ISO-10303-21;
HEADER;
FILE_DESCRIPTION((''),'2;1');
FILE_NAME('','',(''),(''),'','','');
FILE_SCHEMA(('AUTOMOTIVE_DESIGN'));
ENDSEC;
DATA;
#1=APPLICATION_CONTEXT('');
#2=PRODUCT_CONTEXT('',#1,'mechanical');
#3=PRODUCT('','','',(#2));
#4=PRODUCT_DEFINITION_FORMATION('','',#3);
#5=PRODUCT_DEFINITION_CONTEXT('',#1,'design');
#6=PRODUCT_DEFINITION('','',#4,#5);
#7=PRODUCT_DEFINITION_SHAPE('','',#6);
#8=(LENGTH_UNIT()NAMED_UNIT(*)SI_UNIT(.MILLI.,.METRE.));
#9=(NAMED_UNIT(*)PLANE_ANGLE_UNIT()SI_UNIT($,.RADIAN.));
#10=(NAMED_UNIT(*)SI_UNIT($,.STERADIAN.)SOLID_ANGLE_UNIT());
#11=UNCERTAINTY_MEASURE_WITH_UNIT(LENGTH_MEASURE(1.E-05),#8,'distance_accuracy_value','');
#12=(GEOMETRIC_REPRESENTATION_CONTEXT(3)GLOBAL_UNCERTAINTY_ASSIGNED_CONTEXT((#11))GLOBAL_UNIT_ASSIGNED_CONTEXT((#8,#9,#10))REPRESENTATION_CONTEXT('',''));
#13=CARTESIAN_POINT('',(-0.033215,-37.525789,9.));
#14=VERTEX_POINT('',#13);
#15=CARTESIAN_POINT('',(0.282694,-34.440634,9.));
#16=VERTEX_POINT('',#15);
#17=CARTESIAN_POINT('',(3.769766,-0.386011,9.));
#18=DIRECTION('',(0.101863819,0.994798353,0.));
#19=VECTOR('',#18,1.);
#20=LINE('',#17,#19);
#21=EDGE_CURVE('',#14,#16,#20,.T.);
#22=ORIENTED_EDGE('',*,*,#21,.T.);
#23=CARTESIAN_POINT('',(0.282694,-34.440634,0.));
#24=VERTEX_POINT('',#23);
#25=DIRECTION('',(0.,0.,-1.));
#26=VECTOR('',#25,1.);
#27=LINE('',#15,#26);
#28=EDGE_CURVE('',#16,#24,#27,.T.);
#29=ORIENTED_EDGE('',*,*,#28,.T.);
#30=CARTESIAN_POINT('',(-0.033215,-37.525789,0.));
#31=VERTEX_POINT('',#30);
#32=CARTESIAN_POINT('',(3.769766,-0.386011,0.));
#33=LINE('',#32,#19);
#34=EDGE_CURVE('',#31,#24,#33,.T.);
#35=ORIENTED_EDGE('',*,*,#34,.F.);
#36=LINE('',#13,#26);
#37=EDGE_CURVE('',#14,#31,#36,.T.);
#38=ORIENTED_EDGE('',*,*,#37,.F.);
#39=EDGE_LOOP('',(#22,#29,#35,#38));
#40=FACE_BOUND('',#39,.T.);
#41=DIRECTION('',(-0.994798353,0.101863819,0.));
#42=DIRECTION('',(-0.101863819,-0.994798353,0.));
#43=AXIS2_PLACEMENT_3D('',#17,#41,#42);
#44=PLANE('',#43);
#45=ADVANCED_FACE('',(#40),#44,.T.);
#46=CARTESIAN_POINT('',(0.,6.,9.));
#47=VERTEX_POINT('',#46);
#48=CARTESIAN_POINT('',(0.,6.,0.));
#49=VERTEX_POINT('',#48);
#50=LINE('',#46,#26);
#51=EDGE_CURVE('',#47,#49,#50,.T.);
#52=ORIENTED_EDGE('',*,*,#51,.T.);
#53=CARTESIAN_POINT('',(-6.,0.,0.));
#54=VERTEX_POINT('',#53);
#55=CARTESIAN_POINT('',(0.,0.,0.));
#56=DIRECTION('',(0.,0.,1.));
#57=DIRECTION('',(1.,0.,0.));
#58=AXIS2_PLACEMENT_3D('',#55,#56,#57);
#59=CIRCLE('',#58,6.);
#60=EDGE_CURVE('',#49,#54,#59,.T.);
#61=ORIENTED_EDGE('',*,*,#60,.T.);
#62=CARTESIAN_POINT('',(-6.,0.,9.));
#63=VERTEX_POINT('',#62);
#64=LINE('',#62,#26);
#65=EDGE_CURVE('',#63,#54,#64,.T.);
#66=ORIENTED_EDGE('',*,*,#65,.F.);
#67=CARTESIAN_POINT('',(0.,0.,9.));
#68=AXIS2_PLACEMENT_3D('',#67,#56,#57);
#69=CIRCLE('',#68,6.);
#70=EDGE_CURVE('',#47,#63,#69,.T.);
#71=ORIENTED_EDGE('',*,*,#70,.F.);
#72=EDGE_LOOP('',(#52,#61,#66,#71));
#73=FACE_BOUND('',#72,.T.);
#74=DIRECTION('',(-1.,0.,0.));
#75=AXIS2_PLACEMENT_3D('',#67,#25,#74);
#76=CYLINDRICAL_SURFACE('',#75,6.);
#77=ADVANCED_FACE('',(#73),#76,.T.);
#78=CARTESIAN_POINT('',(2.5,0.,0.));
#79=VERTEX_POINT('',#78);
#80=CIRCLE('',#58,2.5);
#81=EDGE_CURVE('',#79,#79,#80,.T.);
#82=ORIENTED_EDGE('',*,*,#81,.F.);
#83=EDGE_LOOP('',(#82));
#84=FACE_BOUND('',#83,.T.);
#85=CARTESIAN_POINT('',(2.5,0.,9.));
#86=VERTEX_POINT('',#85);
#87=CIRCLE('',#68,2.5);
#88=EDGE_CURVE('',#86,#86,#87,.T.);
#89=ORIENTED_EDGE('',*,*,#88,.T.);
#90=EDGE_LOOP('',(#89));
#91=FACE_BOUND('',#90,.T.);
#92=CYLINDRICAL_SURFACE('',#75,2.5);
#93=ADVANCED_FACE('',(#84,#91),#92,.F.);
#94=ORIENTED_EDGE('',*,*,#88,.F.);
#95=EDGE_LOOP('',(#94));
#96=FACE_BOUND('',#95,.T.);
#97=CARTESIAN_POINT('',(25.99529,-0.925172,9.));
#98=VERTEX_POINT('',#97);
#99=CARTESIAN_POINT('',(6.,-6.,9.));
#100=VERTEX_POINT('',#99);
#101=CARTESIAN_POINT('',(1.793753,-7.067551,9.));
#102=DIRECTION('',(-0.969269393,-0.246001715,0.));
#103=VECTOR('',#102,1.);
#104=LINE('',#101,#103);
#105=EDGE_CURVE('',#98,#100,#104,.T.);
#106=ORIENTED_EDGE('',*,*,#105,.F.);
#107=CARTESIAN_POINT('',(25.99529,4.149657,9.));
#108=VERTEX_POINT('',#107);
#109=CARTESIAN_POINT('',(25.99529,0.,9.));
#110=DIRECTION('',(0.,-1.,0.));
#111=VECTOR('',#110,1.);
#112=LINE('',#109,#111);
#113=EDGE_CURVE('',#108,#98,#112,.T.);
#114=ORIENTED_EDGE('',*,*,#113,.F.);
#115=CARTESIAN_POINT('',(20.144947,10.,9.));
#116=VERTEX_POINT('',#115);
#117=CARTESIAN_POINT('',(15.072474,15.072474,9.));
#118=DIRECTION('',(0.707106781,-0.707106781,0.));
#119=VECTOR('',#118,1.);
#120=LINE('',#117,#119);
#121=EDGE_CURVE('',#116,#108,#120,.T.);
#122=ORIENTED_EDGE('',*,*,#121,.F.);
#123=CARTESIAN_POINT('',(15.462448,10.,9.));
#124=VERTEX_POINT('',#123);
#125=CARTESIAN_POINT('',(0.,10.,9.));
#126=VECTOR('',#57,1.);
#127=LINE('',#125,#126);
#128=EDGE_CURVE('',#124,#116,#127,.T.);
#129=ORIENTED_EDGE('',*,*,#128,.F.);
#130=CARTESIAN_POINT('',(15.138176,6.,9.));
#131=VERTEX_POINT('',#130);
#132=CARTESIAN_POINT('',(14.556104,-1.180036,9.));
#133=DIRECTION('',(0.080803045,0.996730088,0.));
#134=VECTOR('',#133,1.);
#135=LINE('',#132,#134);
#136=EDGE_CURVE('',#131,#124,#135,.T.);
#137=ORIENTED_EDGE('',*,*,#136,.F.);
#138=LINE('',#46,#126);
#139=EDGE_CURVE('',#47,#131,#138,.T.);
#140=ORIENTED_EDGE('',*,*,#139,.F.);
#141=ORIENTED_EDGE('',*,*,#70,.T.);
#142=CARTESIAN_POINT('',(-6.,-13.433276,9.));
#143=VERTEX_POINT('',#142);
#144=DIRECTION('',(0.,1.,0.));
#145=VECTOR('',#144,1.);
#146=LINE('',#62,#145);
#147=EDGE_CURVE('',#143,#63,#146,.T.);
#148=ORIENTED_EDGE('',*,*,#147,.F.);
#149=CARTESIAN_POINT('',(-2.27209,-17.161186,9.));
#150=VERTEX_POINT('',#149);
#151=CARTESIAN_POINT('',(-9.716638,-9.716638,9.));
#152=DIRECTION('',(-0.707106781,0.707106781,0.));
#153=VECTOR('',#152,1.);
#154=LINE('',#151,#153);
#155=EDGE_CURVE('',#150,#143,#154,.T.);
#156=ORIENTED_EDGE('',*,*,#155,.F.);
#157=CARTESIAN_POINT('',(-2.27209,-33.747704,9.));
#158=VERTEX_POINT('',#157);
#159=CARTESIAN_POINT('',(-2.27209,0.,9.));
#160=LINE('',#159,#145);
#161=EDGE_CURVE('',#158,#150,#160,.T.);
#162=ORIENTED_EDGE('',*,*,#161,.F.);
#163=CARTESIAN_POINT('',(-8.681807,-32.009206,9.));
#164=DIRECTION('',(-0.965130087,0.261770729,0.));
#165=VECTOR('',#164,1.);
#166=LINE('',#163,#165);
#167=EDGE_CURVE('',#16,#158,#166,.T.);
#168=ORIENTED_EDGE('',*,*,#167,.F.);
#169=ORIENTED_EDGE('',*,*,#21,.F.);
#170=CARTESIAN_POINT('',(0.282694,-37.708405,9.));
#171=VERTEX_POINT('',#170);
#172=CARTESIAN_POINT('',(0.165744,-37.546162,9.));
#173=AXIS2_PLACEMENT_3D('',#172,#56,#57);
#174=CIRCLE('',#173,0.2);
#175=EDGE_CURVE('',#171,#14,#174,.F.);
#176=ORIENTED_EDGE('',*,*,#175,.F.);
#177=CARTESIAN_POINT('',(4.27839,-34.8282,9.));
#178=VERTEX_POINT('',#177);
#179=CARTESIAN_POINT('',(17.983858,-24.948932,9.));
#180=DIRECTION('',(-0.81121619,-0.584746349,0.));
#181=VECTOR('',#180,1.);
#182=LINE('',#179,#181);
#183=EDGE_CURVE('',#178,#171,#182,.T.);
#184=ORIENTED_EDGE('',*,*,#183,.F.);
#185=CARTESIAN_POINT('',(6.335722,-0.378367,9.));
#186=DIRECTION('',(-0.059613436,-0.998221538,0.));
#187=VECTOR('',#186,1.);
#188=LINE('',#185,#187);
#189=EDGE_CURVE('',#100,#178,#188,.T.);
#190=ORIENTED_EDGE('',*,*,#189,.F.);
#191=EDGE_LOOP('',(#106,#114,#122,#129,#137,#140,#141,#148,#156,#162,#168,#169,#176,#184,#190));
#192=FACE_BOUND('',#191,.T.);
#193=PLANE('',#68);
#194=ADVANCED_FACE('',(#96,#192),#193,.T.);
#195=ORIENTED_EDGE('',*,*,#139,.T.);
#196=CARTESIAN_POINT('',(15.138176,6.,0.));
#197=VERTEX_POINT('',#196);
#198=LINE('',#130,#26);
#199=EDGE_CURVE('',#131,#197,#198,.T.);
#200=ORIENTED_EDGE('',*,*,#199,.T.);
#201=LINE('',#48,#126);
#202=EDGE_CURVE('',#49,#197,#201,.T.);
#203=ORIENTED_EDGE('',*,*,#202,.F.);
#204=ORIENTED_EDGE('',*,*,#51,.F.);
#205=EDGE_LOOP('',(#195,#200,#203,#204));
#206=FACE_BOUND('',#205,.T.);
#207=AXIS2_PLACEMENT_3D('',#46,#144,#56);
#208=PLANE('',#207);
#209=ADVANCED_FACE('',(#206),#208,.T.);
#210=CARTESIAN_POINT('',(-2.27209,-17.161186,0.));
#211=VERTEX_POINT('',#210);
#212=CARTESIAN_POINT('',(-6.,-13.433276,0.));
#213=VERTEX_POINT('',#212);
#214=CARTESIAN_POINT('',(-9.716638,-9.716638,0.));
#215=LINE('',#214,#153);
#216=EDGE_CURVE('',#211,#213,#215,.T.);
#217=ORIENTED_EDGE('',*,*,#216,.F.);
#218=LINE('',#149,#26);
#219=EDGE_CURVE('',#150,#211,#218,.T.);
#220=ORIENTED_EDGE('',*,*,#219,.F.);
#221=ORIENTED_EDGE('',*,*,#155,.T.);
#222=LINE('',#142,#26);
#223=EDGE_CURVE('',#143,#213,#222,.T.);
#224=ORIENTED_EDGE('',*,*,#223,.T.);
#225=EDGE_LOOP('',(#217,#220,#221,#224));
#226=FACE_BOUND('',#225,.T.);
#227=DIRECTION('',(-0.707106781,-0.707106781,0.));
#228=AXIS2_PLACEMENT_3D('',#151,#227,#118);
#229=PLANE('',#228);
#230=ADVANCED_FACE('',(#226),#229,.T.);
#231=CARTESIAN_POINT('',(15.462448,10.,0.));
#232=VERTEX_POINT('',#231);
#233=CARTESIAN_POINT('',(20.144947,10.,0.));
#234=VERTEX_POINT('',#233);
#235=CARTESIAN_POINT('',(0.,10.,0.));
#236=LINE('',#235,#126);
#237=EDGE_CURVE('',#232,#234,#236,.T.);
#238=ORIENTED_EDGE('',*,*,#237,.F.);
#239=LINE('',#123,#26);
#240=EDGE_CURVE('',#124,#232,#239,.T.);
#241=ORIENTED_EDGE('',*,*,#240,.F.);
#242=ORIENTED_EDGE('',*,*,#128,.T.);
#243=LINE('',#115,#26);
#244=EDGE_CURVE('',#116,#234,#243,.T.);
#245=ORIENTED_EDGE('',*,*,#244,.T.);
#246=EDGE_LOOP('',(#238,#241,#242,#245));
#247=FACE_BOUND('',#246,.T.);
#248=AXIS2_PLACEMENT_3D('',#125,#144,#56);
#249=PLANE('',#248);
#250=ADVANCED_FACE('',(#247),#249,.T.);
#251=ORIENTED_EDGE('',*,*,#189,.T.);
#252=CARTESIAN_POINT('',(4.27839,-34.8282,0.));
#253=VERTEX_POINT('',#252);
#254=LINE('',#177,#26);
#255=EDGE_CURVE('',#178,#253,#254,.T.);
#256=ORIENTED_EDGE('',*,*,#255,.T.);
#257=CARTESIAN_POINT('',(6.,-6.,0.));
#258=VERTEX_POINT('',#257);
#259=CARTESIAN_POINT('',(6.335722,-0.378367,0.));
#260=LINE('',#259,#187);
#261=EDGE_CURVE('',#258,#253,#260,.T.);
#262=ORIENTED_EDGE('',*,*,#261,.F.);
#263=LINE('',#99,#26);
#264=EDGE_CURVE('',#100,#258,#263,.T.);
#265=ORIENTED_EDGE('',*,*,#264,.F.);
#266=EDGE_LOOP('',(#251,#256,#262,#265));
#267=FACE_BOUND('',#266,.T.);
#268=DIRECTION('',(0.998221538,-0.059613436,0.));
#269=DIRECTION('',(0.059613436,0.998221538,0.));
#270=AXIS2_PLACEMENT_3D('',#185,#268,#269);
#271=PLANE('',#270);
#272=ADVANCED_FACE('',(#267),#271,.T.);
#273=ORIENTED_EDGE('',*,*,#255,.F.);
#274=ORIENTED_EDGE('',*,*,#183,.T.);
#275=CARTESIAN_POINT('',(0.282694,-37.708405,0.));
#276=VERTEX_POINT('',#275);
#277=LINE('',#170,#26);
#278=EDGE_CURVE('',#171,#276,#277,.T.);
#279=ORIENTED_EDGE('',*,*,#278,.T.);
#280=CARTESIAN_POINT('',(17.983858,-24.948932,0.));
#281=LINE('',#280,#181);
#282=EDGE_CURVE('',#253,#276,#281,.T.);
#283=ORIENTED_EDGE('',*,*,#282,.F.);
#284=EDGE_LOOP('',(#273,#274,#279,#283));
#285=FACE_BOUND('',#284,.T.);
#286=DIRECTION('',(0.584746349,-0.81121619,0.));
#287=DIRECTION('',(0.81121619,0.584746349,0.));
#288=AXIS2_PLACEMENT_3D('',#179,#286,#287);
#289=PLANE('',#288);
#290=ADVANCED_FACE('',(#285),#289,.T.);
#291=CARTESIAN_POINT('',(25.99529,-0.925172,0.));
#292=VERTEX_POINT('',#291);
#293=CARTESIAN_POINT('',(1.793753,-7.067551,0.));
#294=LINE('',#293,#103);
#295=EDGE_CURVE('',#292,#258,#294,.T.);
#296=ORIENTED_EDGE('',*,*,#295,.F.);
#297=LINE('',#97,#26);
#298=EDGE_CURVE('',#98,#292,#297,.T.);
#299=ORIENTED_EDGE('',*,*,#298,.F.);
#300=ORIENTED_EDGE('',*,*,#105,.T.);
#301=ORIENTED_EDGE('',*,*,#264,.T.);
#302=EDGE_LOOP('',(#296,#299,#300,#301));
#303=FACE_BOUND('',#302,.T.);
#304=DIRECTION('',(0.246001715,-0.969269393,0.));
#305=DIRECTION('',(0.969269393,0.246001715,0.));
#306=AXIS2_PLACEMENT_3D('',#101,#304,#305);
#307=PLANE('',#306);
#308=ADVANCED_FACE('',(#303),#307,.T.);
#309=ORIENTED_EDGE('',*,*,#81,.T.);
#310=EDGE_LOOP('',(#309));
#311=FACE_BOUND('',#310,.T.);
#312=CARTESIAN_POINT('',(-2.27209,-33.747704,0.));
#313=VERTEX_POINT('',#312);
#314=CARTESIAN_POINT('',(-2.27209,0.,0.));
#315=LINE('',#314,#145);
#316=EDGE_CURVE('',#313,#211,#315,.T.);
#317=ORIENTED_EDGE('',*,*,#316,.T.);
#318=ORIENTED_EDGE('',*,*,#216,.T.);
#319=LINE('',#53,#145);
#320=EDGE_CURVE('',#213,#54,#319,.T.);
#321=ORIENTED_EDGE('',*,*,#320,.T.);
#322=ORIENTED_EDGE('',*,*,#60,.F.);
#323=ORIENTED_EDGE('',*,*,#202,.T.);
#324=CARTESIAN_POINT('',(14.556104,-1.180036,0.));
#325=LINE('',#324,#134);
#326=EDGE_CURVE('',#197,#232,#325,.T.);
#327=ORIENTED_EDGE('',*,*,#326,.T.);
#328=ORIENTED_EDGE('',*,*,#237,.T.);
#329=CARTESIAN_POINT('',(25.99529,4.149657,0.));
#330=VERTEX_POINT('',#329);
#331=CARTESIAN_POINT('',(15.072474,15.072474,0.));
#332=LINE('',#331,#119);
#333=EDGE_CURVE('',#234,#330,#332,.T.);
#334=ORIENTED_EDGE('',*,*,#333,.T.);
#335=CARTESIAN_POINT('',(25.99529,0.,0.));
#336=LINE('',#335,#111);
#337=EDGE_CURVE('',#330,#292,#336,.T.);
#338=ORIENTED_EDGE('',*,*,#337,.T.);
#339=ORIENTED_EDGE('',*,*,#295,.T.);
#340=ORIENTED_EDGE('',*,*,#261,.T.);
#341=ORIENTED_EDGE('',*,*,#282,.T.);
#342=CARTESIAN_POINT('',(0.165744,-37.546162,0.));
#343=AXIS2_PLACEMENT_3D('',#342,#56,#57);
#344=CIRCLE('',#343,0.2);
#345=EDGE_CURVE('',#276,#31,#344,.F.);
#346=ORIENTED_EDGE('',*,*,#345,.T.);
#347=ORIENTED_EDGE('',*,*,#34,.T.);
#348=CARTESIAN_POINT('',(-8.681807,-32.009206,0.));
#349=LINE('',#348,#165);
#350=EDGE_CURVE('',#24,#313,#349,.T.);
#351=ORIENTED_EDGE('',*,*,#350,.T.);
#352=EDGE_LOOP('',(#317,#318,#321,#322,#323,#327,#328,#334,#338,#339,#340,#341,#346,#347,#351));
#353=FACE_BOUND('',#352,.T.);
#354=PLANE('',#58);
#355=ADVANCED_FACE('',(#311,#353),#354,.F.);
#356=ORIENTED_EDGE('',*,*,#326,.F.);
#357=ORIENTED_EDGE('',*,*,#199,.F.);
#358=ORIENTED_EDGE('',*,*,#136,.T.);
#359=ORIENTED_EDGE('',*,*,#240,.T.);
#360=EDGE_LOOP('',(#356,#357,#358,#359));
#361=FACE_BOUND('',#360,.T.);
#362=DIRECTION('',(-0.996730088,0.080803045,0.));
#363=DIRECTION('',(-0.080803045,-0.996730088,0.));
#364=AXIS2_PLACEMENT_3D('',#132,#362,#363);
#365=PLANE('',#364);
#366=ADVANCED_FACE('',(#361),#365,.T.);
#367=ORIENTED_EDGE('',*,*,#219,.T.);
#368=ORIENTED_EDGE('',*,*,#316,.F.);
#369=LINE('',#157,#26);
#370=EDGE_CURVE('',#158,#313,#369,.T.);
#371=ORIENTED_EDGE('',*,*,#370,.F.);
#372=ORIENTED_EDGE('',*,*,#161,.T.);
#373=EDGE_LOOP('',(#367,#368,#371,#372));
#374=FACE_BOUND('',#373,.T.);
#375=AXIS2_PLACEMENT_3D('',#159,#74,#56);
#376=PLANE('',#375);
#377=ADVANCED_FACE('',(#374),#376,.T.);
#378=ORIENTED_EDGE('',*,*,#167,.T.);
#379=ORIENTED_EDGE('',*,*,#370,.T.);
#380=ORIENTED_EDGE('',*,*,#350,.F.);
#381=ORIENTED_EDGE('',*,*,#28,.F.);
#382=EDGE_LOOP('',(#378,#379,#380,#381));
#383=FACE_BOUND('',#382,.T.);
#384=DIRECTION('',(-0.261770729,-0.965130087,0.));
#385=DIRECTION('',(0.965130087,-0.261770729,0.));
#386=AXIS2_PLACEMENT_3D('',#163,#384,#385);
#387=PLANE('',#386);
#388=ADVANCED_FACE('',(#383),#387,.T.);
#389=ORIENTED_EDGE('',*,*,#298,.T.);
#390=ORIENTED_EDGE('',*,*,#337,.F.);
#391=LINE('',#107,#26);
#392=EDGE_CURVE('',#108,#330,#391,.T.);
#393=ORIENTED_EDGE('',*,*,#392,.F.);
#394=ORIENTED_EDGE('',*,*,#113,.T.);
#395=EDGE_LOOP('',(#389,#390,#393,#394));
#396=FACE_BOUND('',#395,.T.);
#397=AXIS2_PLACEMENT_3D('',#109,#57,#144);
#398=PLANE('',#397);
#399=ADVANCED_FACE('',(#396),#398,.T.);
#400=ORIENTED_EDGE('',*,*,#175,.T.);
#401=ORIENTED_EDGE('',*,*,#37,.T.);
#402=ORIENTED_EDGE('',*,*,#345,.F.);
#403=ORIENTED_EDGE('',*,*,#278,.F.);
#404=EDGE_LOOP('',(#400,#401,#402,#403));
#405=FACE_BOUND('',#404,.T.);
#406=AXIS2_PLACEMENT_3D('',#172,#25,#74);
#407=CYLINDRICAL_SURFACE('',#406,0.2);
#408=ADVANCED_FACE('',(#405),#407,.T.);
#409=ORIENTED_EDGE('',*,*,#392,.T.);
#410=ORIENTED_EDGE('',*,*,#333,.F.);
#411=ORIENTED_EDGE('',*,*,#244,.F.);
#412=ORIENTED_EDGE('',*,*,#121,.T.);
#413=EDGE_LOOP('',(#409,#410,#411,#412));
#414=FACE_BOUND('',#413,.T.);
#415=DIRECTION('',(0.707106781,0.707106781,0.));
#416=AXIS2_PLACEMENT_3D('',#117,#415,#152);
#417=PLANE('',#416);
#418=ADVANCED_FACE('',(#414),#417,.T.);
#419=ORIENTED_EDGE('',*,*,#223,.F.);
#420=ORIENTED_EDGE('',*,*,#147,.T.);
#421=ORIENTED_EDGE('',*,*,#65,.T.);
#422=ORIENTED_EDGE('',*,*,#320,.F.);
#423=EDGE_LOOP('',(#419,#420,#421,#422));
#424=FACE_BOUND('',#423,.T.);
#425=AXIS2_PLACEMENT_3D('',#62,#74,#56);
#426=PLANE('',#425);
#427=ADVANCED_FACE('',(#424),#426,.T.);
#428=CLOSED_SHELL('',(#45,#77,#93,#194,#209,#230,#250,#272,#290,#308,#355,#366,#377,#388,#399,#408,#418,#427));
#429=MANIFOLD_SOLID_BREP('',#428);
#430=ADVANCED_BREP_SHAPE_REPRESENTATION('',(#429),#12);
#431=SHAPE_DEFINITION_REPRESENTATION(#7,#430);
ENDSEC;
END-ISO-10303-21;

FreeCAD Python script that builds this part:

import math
import FreeCAD as App
import Part
import Sketcher

V = App.Vector
Q = App.Units.Quantity

doc = App.newDocument("Part")
body = doc.addObject("PartDesign::Body", "Body")

# Sketch on XY plane
sketch1 = doc.addObject("Sketcher::SketchObject", "Sketch")
body.addObject(sketch1)
sketch1.AttachmentSupport = (doc.XY_Plane, [""])
sketch1.MapMode = "FlatFace"
sketch1.addGeometry(Part.LineSegment(V(15.138176, 6, 0), V(0, 6, 0)), False)
sketch1.addGeometry(Part.ArcOfCircle(Part.Circle(V(0, 0, 0), V(0, 0, 1), 6), math.radians(90), math.radians(180)), False)
sketch1.addGeometry(Part.LineSegment(V(-6, 0, 0), V(-6, -13.433276, 0)), False)
sketch1.addGeometry(Part.LineSegment(V(-6, -13.433276, 0), V(-2.27209, -17.161186, 0)), False)
sketch1.addGeometry(Part.LineSegment(V(-2.27209, -17.161186, 0), V(-2.27209, -33.747704, 0)), False)
sketch1.addGeometry(Part.LineSegment(V(-2.27209, -33.747704, 0), V(0.282694, -34.440634, 0)), False)
sketch1.addGeometry(Part.LineSegment(V(0.282694, -34.440634, 0), V(-0.033215, -37.525789, 0)), False)
sketch1.addGeometry(Part.ArcOfCircle(Part.Circle(V(0.165744, -37.546162, 0), V(0, 0, 1), 0.2), math.radians(174.153492), math.radians(305.785073)), False)
sketch1.addGeometry(Part.LineSegment(V(0.282694, -37.708405, 0), V(4.27839, -34.8282, 0)), False)
sketch1.addGeometry(Part.LineSegment(V(4.27839, -34.8282, 0), V(6, -6, 0)), False)
sketch1.addGeometry(Part.LineSegment(V(6, -6, 0), V(25.99529, -0.925172, 0)), False)
sketch1.addGeometry(Part.LineSegment(V(25.99529, -0.925172, 0), V(25.99529, 4.149657, 0)), False)
sketch1.addGeometry(Part.LineSegment(V(25.99529, 4.149657, 0), V(20.144947, 10, 0)), False)
sketch1.addGeometry(Part.LineSegment(V(20.144947, 10, 0), V(15.462448, 10, 0)), False)
sketch1.addGeometry(Part.LineSegment(V(15.462448, 10, 0), V(15.138176, 6, 0)), False)
sketch1.addGeometry(Part.Circle(V(0, 0, 0), V(0, 0, 1), 2.5), False)
sketch1.addConstraint(Sketcher.Constraint("Coincident", 0, 2, 1, 1))
sketch1.addConstraint(Sketcher.Constraint("Coincident", 1, 2, 2, 1))
sketch1.addConstraint(Sketcher.Constraint("Coincident", 2, 2, 3, 1))
sketch1.addConstraint(Sketcher.Constraint("Coincident", 3, 2, 4, 1))
sketch1.addConstraint(Sketcher.Constraint("Coincident", 4, 2, 5, 1))
sketch1.addConstraint(Sketcher.Constraint("Coincident", 5, 2, 6, 1))
sketch1.addConstraint(Sketcher.Constraint("Coincident", 6, 2, 7, 1))
sketch1.addConstraint(Sketcher.Constraint("Coincident", 7, 2, 8, 1))
sketch1.addConstraint(Sketcher.Constraint("Coincident", 8, 2, 9, 1))
sketch1.addConstraint(Sketcher.Constraint("Coincident", 9, 2, 10, 1))
sketch1.addConstraint(Sketcher.Constraint("Coincident", 10, 2, 11, 1))
sketch1.addConstraint(Sketcher.Constraint("Coincident", 11, 2, 12, 1))
sketch1.addConstraint(Sketcher.Constraint("Coincident", 12, 2, 13, 1))
sketch1.addConstraint(Sketcher.Constraint("Coincident", 13, 2, 14, 1))
sketch1.addConstraint(Sketcher.Constraint("Coincident", 14, 2, 0, 1))
sketch1.addConstraint(Sketcher.Constraint("Horizontal", 0))
sketch1.addConstraint(Sketcher.Constraint("Vertical", 2))
sketch1.addConstraint(Sketcher.Constraint("Vertical", 4))
sketch1.addConstraint(Sketcher.Constraint("Vertical", 11))
sketch1.addConstraint(Sketcher.Constraint("Horizontal", 13))
sketch1.addConstraint(Sketcher.Constraint("Coincident", 1, 3, -1, 1))
sketch1.addConstraint(Sketcher.Constraint("Coincident", 15, 3, -1, 1))
sketch1.addConstraint(Sketcher.Constraint("PointOnObject", 0, 2, -2))
sketch1.addConstraint(Sketcher.Constraint("PointOnObject", 1, 2, -1))
sketch1.addConstraint(Sketcher.Constraint("Diameter", 15, Q("5 mm")))
sketch1.addConstraint(Sketcher.Constraint("Radius", 1, Q("6 mm")))
sketch1.addConstraint(Sketcher.Constraint("Radius", 7, Q("0.2 mm")))
sketch1.addConstraint(Sketcher.Constraint("DistanceX", -1, 1, 9, 2, Q("6 mm")))
sketch1.addConstraint(Sketcher.Constraint("DistanceY", 9, 2, -1, 1, Q("6 mm")))
sketch1.addConstraint(Sketcher.Constraint("DistanceY", -1, 1, 12, 2, Q("10 mm")))
sketch1.addConstraint(Sketcher.Constraint("DistanceX", 13, 2, 13, 1, Q("4.682499 mm")))
sketch1.addConstraint(Sketcher.Constraint("DistanceY", 11, 1, 11, 2, Q("5.074828 mm")))
sketch1.addConstraint(Sketcher.Constraint("DistanceY", 8, 2, -1, 1, Q("34.8282 mm")))
sketch1.addConstraint(Sketcher.Constraint("DistanceY", 7, 2, 4, 2, Q("3.960701 mm")))
sketch1.addConstraint(Sketcher.Constraint("Distance", 3, Q("5.272061 mm")))
sketch1.addConstraint(Sketcher.Constraint("Distance", 9, Q("28.879561 mm")))
sketch1.addConstraint(Sketcher.Constraint("Distance", 10, Q("20.62924 mm")))
sketch1.addConstraint(Sketcher.Constraint("DistanceX", 0, 2, 0, 1, Q("15.138176 mm")))
sketch1.addConstraint(Sketcher.Constraint("DistanceY", 2, 2, 2, 1, Q("13.433276 mm")))
sketch1.addConstraint(Sketcher.Constraint("DistanceY", 4, 2, 4, 1, Q("16.586517 mm")))
sketch1.addConstraint(Sketcher.Constraint("DistanceY", 7, 3, -1, 1, Q("37.546162 mm")))
sketch1.addConstraint(Sketcher.Constraint("DistanceX", 3, 2, -1, 1, Q("2.27209 mm")))
sketch1.addConstraint(Sketcher.Constraint("DistanceY", 6, 2, -1, 1, Q("37.525789 mm")))
sketch1.addConstraint(Sketcher.Constraint("DistanceX", -1, 1, 10, 2, Q("25.99529 mm")))
sketch1.addConstraint(Sketcher.Constraint("DistanceX", -1, 1, 13, 2, Q("15.462448 mm")))
sketch1.addConstraint(Sketcher.Constraint("DistanceY", 5, 2, 4, 2, Q("0.69293 mm")))
sketch1.addConstraint(Sketcher.Constraint("DistanceX", 7, 3, 5, 2, Q("0.116949 mm")))
sketch1.addConstraint(Sketcher.Constraint("Distance", 5, Q("2.647087 mm")))
pad1 = doc.addObject("PartDesign::Pad", "Pad")
body.addObject(pad1)
pad1.Profile = sketch1
pad1.Length = 9

doc.recompute()
